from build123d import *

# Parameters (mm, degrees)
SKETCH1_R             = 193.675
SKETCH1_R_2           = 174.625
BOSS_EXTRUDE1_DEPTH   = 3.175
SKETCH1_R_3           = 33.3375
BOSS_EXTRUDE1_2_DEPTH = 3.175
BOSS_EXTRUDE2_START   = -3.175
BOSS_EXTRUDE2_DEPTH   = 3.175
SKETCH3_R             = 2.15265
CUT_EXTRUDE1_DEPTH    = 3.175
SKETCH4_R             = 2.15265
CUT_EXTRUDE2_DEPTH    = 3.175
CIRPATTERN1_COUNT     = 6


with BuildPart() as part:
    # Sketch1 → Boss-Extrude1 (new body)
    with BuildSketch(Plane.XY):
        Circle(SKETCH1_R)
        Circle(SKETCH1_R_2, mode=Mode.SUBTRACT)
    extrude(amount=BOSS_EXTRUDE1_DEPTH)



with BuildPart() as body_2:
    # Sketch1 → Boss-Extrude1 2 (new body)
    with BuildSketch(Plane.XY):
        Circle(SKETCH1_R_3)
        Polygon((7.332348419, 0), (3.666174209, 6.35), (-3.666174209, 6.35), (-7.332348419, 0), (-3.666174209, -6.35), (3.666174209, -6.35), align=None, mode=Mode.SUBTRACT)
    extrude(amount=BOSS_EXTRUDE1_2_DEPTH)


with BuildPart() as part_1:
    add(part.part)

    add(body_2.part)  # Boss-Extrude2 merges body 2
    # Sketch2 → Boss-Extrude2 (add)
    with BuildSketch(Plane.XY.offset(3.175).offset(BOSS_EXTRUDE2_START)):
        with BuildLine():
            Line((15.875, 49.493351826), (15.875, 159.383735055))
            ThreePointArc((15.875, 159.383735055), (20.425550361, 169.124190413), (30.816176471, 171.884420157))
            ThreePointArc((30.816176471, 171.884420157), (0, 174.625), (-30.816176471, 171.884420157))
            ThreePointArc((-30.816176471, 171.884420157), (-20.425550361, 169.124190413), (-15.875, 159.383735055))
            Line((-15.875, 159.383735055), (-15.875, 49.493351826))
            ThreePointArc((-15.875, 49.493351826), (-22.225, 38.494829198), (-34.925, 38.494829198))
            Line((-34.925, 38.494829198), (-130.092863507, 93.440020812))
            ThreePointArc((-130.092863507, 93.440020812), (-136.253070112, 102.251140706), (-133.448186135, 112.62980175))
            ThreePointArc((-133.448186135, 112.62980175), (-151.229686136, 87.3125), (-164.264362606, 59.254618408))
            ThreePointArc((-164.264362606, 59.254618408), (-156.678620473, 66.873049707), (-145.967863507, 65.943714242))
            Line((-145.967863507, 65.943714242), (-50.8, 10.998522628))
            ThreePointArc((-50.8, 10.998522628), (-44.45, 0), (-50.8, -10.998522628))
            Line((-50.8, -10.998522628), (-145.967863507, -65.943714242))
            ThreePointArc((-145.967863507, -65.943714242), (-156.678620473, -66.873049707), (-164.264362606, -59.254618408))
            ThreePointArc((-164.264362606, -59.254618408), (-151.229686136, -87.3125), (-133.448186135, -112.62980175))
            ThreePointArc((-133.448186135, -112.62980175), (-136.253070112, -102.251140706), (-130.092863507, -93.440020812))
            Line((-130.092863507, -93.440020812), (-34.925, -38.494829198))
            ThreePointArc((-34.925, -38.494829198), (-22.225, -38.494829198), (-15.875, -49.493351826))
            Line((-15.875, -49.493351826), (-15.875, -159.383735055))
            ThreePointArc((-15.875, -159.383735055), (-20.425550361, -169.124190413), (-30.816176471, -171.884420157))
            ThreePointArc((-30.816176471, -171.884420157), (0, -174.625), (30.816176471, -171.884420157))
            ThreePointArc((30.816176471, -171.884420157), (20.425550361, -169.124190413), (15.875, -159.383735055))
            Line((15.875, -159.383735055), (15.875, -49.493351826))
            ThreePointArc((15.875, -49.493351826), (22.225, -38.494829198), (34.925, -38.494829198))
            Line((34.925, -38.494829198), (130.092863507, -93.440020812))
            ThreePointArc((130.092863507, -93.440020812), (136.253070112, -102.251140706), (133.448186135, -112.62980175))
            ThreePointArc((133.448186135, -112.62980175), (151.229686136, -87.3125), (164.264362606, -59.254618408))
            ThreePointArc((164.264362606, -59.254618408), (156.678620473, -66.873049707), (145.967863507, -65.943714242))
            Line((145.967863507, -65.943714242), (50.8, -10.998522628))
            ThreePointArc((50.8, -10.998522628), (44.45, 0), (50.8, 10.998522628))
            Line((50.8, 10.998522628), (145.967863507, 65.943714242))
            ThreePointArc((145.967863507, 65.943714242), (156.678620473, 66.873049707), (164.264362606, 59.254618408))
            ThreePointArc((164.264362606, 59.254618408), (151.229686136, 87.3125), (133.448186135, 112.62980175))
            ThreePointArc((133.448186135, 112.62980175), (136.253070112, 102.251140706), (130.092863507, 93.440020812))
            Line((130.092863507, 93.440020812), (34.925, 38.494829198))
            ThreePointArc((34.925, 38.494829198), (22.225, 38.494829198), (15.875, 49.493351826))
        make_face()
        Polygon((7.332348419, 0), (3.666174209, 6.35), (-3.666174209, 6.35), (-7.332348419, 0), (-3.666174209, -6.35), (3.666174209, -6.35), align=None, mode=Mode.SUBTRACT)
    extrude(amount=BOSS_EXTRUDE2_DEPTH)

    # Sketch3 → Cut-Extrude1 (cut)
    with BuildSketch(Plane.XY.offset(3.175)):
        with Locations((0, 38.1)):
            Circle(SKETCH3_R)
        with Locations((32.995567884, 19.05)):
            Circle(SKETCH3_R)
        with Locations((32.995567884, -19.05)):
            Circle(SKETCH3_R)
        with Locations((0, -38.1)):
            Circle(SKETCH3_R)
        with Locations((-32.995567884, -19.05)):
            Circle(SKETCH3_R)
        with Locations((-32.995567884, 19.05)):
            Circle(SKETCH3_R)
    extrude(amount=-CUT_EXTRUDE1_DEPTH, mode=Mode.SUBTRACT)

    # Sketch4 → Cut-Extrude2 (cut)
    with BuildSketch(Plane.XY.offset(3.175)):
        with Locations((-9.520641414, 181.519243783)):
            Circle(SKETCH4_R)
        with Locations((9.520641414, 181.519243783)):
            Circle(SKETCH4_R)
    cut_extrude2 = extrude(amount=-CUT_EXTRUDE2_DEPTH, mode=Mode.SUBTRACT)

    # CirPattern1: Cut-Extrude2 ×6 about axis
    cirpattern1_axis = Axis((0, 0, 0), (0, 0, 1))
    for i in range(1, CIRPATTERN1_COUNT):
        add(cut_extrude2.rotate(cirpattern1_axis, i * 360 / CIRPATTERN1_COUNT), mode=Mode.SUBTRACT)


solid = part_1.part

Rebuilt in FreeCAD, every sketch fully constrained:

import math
import FreeCAD as App
import Part
import Sketcher
from FreeCAD import Vector
Q = App.Units.Quantity


def add_polygon(sketch, points):
    """Adds a closed chain of lines whose ends are joined by coincident constraints."""
    first, n = sketch.GeometryCount, len(points)
    for a, b in zip(points, points[1:] + points[:1]):
        sketch.addGeometry(Part.LineSegment(App.Vector(*a, 0), App.Vector(*b, 0)), False)
    for i in range(n):
        sketch.addConstraint(Sketcher.Constraint("Coincident", first + i, 2, first + (i + 1) % n, 1))

doc = App.newDocument("Part")
body = doc.addObject("PartDesign::Body", "Body")

# Sketch on XY plane
sketch1 = doc.addObject("Sketcher::SketchObject", "Sketch")
body.addObject(sketch1)
sketch1.AttachmentSupport = (doc.XY_Plane, [""])
sketch1.MapMode = "FlatFace"
sketch1.addGeometry(Part.Circle(Vector(0, 0, 0), Vector(0, 0, 1), 194), False)
sketch1.addGeometry(Part.Circle(Vector(0, 0, 0), Vector(0, 0, 1), 175), False)
sketch1.addConstraint(Sketcher.Constraint("Coincident", 0, 3, -1, 1))
sketch1.addConstraint(Sketcher.Constraint("Coincident", 1, 3, -1, 1))
sketch1.addConstraint(Sketcher.Constraint("Diameter", 0, Q("15.25 in")))
sketch1.addConstraint(Sketcher.Constraint("Diameter", 1, Q("13.75 in")))
pad1 = doc.addObject("PartDesign::Pad", "Pad")
body.addObject(pad1)
pad1.Profile = sketch1
pad1.Length = Q("0.125 in")
body2 = doc.addObject("PartDesign::Body", "Body001")

# Sketch on XY plane
sketch2 = doc.addObject("Sketcher::SketchObject", "Sketch001")
body2.addObject(sketch2)
sketch2.AttachmentSupport = (doc.getObject("XY_Plane001"), [""])
sketch2.MapMode = "FlatFace"
sketch2.addGeometry(Part.Circle(Vector(0, 0, 0), Vector(0, 0, 1), 33), False)  # 0
add_polygon(sketch2, [(4, 6), (7, 0), (4, -6), (-4, -6), (-7, 0), (-4, 6)])  # lines 1-6
sketch2.addConstraint(Sketcher.Constraint("Horizontal", 3))
sketch2.addConstraint(Sketcher.Constraint("Horizontal", 6))
sketch2.addConstraint(Sketcher.Constraint("Coincident", 0, 3, -1, 1))
sketch2.addConstraint(Sketcher.Constraint("Symmetric", 1, 2, 4, 2, -1, 1))
sketch2.addConstraint(Sketcher.Constraint("Symmetric", 2, 2, 5, 2, -1, 1))
sketch2.addConstraint(Sketcher.Constraint("PointOnObject", 1, 2, -1))
sketch2.addConstraint(Sketcher.Constraint("Parallel", 1, 4))
sketch2.addConstraint(Sketcher.Constraint("Vertical", 3, 2, 5, 2))
sketch2.addConstraint(Sketcher.Constraint("Diameter", 0, Q("2.625 in")))
sketch2.addConstraint(Sketcher.Constraint("Angle", 1, Q("-60 deg")))
sketch2.addConstraint(Sketcher.Constraint("DistanceY", 3, 2, 5, 2, Q("0.5 in")))
sketch2.addConstraint(Sketcher.Constraint("DistanceX", 3, 2, 3, 1, 7.332348))
pad2 = doc.addObject("PartDesign::Pad", "Pad001")
body2.addObject(pad2)
pad2.Profile = sketch2
pad2.Length = Q("0.125 in")
body.AllowCompound = True
doc.recompute()

boolean = doc.addObject("PartDesign::Boolean", "Boolean")
body.addObject(boolean)
boolean.Type = "Fuse"
boolean.addObjects([body2])

# Sketch on XY plane
sketch3 = doc.addObject("Sketcher::SketchObject", "Sketch002")
body.addObject(sketch3)
sketch3.AttachmentSupport = (doc.XY_Plane, [""])
sketch3.MapMode = "FlatFace"
sketch3.addGeometry(Part.LineSegment(Vector(16, 49, 0), Vector(16, 159, 0)), False)  # 0
sketch3.addGeometry(Part.ArcOfCircle(Part.Circle(Vector(29, 159, 0), Vector(0, 0, 1), 13), math.radians(80), math.radians(180)), False)  # 1
sketch3.addGeometry(Part.ArcOfCircle(Part.Circle(Vector(0, 0, 0), Vector(0, 0, 1), 175), math.radians(80), math.radians(100)), False)  # 2
sketch3.addGeometry(Part.ArcOfCircle(Part.Circle(Vector(-29, 159, 0), Vector(0, 0, 1), 13), math.radians(0), math.radians(100)), False)  # 3
sketch3.addGeometry(Part.LineSegment(Vector(-16, 159, 0), Vector(-16, 49, 0)), False)  # 4
sketch3.addGeometry(Part.ArcOfCircle(Part.Circle(Vector(-29, 49, 0), Vector(0, 0, 1), 13), math.radians(-120), math.radians(0)), False)  # 5
sketch3.addGeometry(Part.LineSegment(Vector(-35, 38, 0), Vector(-130, 93, 0)), False)  # 6
sketch3.addGeometry(Part.ArcOfCircle(Part.Circle(Vector(-124, 104, 0), Vector(0, 0, 1), 13), math.radians(140), math.radians(240)), False)  # 7
sketch3.addGeometry(Part.ArcOfCircle(Part.Circle(Vector(0, 0, 0), Vector(0, 0, 1), 175), math.radians(140), math.radians(160)), False)  # 8
sketch3.addGeometry(Part.ArcOfCircle(Part.Circle(Vector(-152, 55, 0), Vector(0, 0, 1), 13), math.radians(60), math.radians(160)), False)  # 9
sketch3.addGeometry(Part.LineSegment(Vector(-146, 66, 0), Vector(-51, 11, 0)), False)  # 10
sketch3.addGeometry(Part.ArcOfCircle(Part.Circle(Vector(-57, 0, 0), Vector(0, 0, 1), 13), math.radians(-60), math.radians(60)), False)  # 11
sketch3.addGeometry(Part.LineSegment(Vector(-51, -11, 0), Vector(-146, -66, 0)), False)  # 12
sketch3.addGeometry(Part.ArcOfCircle(Part.Circle(Vector(-152, -55, 0), Vector(0, 0, 1), 13), math.radians(-160), math.radians(-60)), False)  # 13
sketch3.addGeometry(Part.ArcOfCircle(Part.Circle(Vector(0, 0, 0), Vector(0, 0, 1), 175), math.radians(-160), math.radians(-140)), False)  # 14
sketch3.addGeometry(Part.ArcOfCircle(Part.Circle(Vector(-124, -104, 0), Vector(0, 0, 1), 13), math.radians(120), math.radians(220)), False)  # 15
sketch3.addGeometry(Part.LineSegment(Vector(-130, -93, 0), Vector(-35, -38, 0)), False)  # 16
sketch3.addGeometry(Part.ArcOfCircle(Part.Circle(Vector(-29, -49, 0), Vector(0, 0, 1), 13), math.radians(0), math.radians(120)), False)  # 17
sketch3.addGeometry(Part.LineSegment(Vector(-16, -49, 0), Vector(-16, -159, 0)), False)  # 18
sketch3.addGeometry(Part.ArcOfCircle(Part.Circle(Vector(-29, -159, 0), Vector(0, 0, 1), 13), math.radians(-100), math.radians(0)), False)  # 19
sketch3.addGeometry(Part.ArcOfCircle(Part.Circle(Vector(0, 0, 0), Vector(0, 0, 1), 175), math.radians(-100), math.radians(-80)), False)  # 20
sketch3.addGeometry(Part.ArcOfCircle(Part.Circle(Vector(29, -159, 0), Vector(0, 0, 1), 13), math.radians(180), math.radians(280)), False)  # 21
sketch3.addGeometry(Part.LineSegment(Vector(16, -159, 0), Vector(16, -49, 0)), False)  # 22
sketch3.addGeometry(Part.ArcOfCircle(Part.Circle(Vector(29, -49, 0), Vector(0, 0, 1), 13), math.radians(60), math.radians(180)), False)  # 23
sketch3.addGeometry(Part.LineSegment(Vector(35, -38, 0), Vector(130, -93, 0)), False)  # 24
sketch3.addGeometry(Part.ArcOfCircle(Part.Circle(Vector(124, -104, 0), Vector(0, 0, 1), 13), math.radians(-40), math.radians(60)), False)  # 25
sketch3.addGeometry(Part.ArcOfCircle(Part.Circle(Vector(0, 0, 0), Vector(0, 0, 1), 175), math.radians(-40), math.radians(-20)), False)  # 26
sketch3.addGeometry(Part.ArcOfCircle(Part.Circle(Vector(152, -55, 0), Vector(0, 0, 1), 13), math.radians(-120), math.radians(-20)), False)  # 27
sketch3.addGeometry(Part.LineSegment(Vector(146, -66, 0), Vector(51, -11, 0)), False)  # 28
sketch3.addGeometry(Part.ArcOfCircle(Part.Circle(Vector(57, 0, 0), Vector(0, 0, 1), 13), math.radians(120), math.radians(240)), False)  # 29
sketch3.addGeometry(Part.LineSegment(Vector(51, 11, 0), Vector(146, 66, 0)), False)  # 30
sketch3.addGeometry(Part.ArcOfCircle(Part.Circle(Vector(152, 55, 0), Vector(0, 0, 1), 13), math.radians(20), math.radians(120)), False)  # 31
sketch3.addGeometry(Part.ArcOfCircle(Part.Circle(Vector(0, 0, 0), Vector(0, 0, 1), 175), math.radians(20), math.radians(40)), False)  # 32
sketch3.addGeometry(Part.ArcOfCircle(Part.Circle(Vector(124, 104, 0), Vector(0, 0, 1), 13), math.radians(-60), math.radians(40)), False)  # 33
sketch3.addGeometry(Part.LineSegment(Vector(130, 93, 0), Vector(35, 38, 0)), False)  # 34
sketch3.addGeometry(Part.ArcOfCircle(Part.Circle(Vector(29, 49, 0), Vector(0, 0, 1), 13), math.radians(180), math.radians(300)), False)  # 35
add_polygon(sketch3, [(4, 6), (7, 0), (4, -6), (-4, -6), (-7, 0), (-4, 6)])  # lines 36-41
sketch3.addConstraint(Sketcher.Constraint("Tangent", 0, 2, 1, 2))
sketch3.addConstraint(Sketcher.Constraint("Tangent", 1, 1, 2, 1))
sketch3.addConstraint(Sketcher.Constraint("Tangent", 2, 2, 3, 2))
sketch3.addConstraint(Sketcher.Constraint("Tangent", 3, 1, 4, 1))
sketch3.addConstraint(Sketcher.Constraint("Tangent", 4, 2, 5, 2))
sketch3.addConstraint(Sketcher.Constraint("Tangent", 5, 1, 6, 1))
sketch3.addConstraint(Sketcher.Constraint("Tangent", 6, 2, 7, 2))
sketch3.addConstraint(Sketcher.Constraint("Tangent", 7, 1, 8, 1))
sketch3.addConstraint(Sketcher.Constraint("Tangent", 8, 2, 9, 2))
sketch3.addConstraint(Sketcher.Constraint("Tangent", 9, 1, 10, 1))
sketch3.addConstraint(Sketcher.Constraint("Tangent", 10, 2, 11, 2))
sketch3.addConstraint(Sketcher.Constraint("Tangent", 11, 1, 12, 1))
sketch3.addConstraint(Sketcher.Constraint("Tangent", 12, 2, 13, 2))
sketch3.addConstraint(Sketcher.Constraint("Tangent", 13, 1, 14, 1))
sketch3.addConstraint(Sketcher.Constraint("Tangent", 14, 2, 15, 2))
sketch3.addConstraint(Sketcher.Constraint("Tangent", 15, 1, 16, 1))
sketch3.addConstraint(Sketcher.Constraint("Tangent", 16, 2, 17, 2))
sketch3.addConstraint(Sketcher.Constraint("Tangent", 17, 1, 18, 1))
sketch3.addConstraint(Sketcher.Constraint("Tangent", 18, 2, 19, 2))
sketch3.addConstraint(Sketcher.Constraint("Tangent", 19, 1, 20, 1))
sketch3.addConstraint(Sketcher.Constraint("Tangent", 20, 2, 21, 2))
sketch3.addConstraint(Sketcher.Constraint("Tangent", 21, 1, 22, 1))
sketch3.addConstraint(Sketcher.Constraint("Tangent", 22, 2, 23, 2))
sketch3.addConstraint(Sketcher.Constraint("Tangent", 23, 1, 24, 1))
sketch3.addConstraint(Sketcher.Constraint("Tangent", 24, 2, 25, 2))
sketch3.addConstraint(Sketcher.Constraint("Tangent", 25, 1, 26, 1))
sketch3.addConstraint(Sketcher.Constraint("Tangent", 26, 2, 27, 2))
sketch3.addConstraint(Sketcher.Constraint("Tangent", 27, 1, 28, 1))
sketch3.addConstraint(Sketcher.Constraint("Tangent", 28, 2, 29, 2))
sketch3.addConstraint(Sketcher.Constraint("Tangent", 29, 1, 30, 1))
sketch3.addConstraint(Sketcher.Constraint("Tangent", 30, 2, 31, 2))
sketch3.addConstraint(Sketcher.Constraint("Tangent", 31, 1, 32, 1))
sketch3.addConstraint(Sketcher.Constraint("Tangent", 32, 2, 33, 2))
sketch3.addConstraint(Sketcher.Constraint("Tangent", 33, 1, 34, 1))
sketch3.addConstraint(Sketcher.Constraint("Tangent", 34, 2, 35, 2))
sketch3.addConstraint(Sketcher.Constraint("Tangent", 35, 1, 0, 1))
sketch3.addConstraint(Sketcher.Constraint("Vertical", 0))
sketch3.addConstraint(Sketcher.Constraint("Vertical", 4))
sketch3.addConstraint(Sketcher.Constraint("Vertical", 18))
sketch3.addConstraint(Sketcher.Constraint("Vertical", 22))
sketch3.addConstraint(Sketcher.Constraint("Horizontal", 38))
sketch3.addConstraint(Sketcher.Constraint("Horizontal", 41))
sketch3.addConstraint(Sketcher.Constraint("Coincident", 2, 3, -1, 1))
sketch3.addConstraint(Sketcher.Constraint("Coincident", 8, 3, -1, 1))
sketch3.addConstraint(Sketcher.Constraint("Coincident", 14, 3, -1, 1))
sketch3.addConstraint(Sketcher.Constraint("Coincident", 20, 3, -1, 1))
sketch3.addConstraint(Sketcher.Constraint("Coincident", 26, 3, -1, 1))
sketch3.addConstraint(Sketcher.Constraint("Coincident", 32, 3, -1, 1))
sketch3.addConstraint(Sketcher.Constraint("Equal", 1, 3))
sketch3.addConstraint(Sketcher.Constraint("Equal", 3, 5))
sketch3.addConstraint(Sketcher.Constraint("Equal", 5, 7))
sketch3.addConstraint(Sketcher.Constraint("Equal", 2, 8))
sketch3.addConstraint(Sketcher.Constraint("Equal", 7, 9))
sketch3.addConstraint(Sketcher.Constraint("Equal", 9, 11))
sketch3.addConstraint(Sketcher.Constraint("Equal", 11, 13))
sketch3.addConstraint(Sketcher.Constraint("Equal", 8, 14))
sketch3.addConstraint(Sketcher.Constraint("Equal", 13, 15))
sketch3.addConstraint(Sketcher.Constraint("Equal", 15, 17))
sketch3.addConstraint(Sketcher.Constraint("Equal", 17, 19))
sketch3.addConstraint(Sketcher.Constraint("Equal", 14, 20))
sketch3.addConstraint(Sketcher.Constraint("Equal", 19, 21))
sketch3.addConstraint(Sketcher.Constraint("Equal", 21, 23))
sketch3.addConstraint(Sketcher.Constraint("Equal", 23, 25))
sketch3.addConstraint(Sketcher.Constraint("Equal", 20, 26))
sketch3.addConstraint(Sketcher.Constraint("Equal", 25, 27))
sketch3.addConstraint(Sketcher.Constraint("Equal", 27, 29))
sketch3.addConstraint(Sketcher.Constraint("Equal", 29, 31))
sketch3.addConstraint(Sketcher.Constraint("Equal", 26, 32))
sketch3.addConstraint(Sketcher.Constraint("Equal", 31, 33))
sketch3.addConstraint(Sketcher.Constraint("Equal", 33, 35))
sketch3.addConstraint(Sketcher.Constraint("Symmetric", 5, 3, 23, 3, -1, 1))
sketch3.addConstraint(Sketcher.Constraint("Symmetric", 11, 3, 29, 3, -1, 1))
sketch3.addConstraint(Sketcher.Constraint("Symmetric", 17, 3, 35, 3, -1, 1))
sketch3.addConstraint(Sketcher.Constraint("Symmetric", 36, 2, 39, 2, -1, 1))
sketch3.addConstraint(Sketcher.Constraint("Symmetric", 37, 2, 40, 2, -1, 1))
sketch3.addConstraint(Sketcher.Constraint("Symmetric", 17, 3, 23, 3, -2))
sketch3.addConstraint(Sketcher.Constraint("Symmetric", 12, 2, 27, 1, -2))
sketch3.addConstraint(Sketcher.Constraint("PointOnObject", 36, 2, -1))
sketch3.addConstraint(Sketcher.Constraint("Parallel", 6, 10))
sketch3.addConstraint(Sketcher.Constraint("Parallel", 12, 16))
sketch3.addConstraint(Sketcher.Constraint("Parallel", 10, 24))
sketch3.addConstraint(Sketcher.Constraint("Parallel", 24, 28))
sketch3.addConstraint(Sketcher.Constraint("Parallel", 16, 30))
sketch3.addConstraint(Sketcher.Constraint("Parallel", 30, 34))
sketch3.addConstraint(Sketcher.Constraint("Perpendicular", 34, 36))
sketch3.addConstraint(Sketcher.Constraint("Perpendicular", 28, 37))
sketch3.addConstraint(Sketcher.Constraint("Parallel", 36, 39))
sketch3.addConstraint(Sketcher.Constraint("Equal", 6, 10))
sketch3.addConstraint(Sketcher.Constraint("Radius", 1, Q("0.5 in")))
sketch3.addConstraint(Sketcher.Constraint("DistanceX", 10, 2, -1, 1, Q("2 in")))
sketch3.addConstraint(Sketcher.Constraint("Angle", 6, Q("150 deg")))
sketch3.addConstraint(Sketcher.Constraint("Radius", 2, Q("6.875 in")))
sketch3.addConstraint(Sketcher.Constraint("DistanceY", 37, 2, -1, 1, Q("0.25 in")))
sketch3.addConstraint(Sketcher.Constraint("DistanceX", -1, 1, 1, 3, Q("1.125 in")))
sketch3.addConstraint(Sketcher.Constraint("DistanceX", 38, 2, 38, 1, 7.332348))
pad3 = doc.addObject("PartDesign::Pad", "Pad002")
body.addObject(pad3)
pad3.Profile = sketch3
pad3.Length = Q("0.125 in")

# Sketch on XY plane
sketch4 = doc.addObject("Sketcher::SketchObject", "Sketch003")
body.addObject(sketch4)
sketch4.AttachmentSupport = (doc.XY_Plane, [""])
sketch4.MapMode = "FlatFace"
sketch4.AttachmentOffset = App.Placement(Vector(0, 0, 0.125 * 25.4), App.Rotation())
sketch4.addGeometry(Part.Circle(Vector(0, 38.1, 0), Vector(0, 0, 1), 2.2), False)
sketch4.addGeometry(Part.Circle(Vector(33, 19.1, 0), Vector(0, 0, 1), 2.2), False)
sketch4.addGeometry(Part.Circle(Vector(33, -19.1, 0), Vector(0, 0, 1), 2.2), False)
sketch4.addGeometry(Part.Circle(Vector(0, -38.1, 0), Vector(0, 0, 1), 2.2), False)
sketch4.addGeometry(Part.Circle(Vector(-33, -19.1, 0), Vector(0, 0, 1), 2.2), False)
sketch4.addGeometry(Part.Circle(Vector(-33, 19.1, 0), Vector(0, 0, 1), 2.2), False)
sketch4.addConstraint(Sketcher.Constraint("Equal", 0, 1))
sketch4.addConstraint(Sketcher.Constraint("Equal", 1, 2))
sketch4.addConstraint(Sketcher.Constraint("Equal", 2, 3))
sketch4.addConstraint(Sketcher.Constraint("Equal", 3, 4))
sketch4.addConstraint(Sketcher.Constraint("Equal", 4, 5))
sketch4.addConstraint(Sketcher.Constraint("Symmetric", 0, 3, 3, 3, -1, 1))
sketch4.addConstraint(Sketcher.Constraint("Symmetric", 1, 3, 4, 3, -1, 1))
sketch4.addConstraint(Sketcher.Constraint("Symmetric", 2, 3, 5, 3, -1, 1))
sketch4.addConstraint(Sketcher.Constraint("Symmetric", 2, 3, 4, 3, -2))
sketch4.addConstraint(Sketcher.Constraint("PointOnObject", 0, 3, -2))
sketch4.addConstraint(Sketcher.Constraint("DistanceY", 3, 3, 0, 3, Q("3 in")))
sketch4.addConstraint(Sketcher.Constraint("Diameter", 0, Q("0.1695 in")))
sketch4.addConstraint(Sketcher.Constraint("DistanceY", 2, 3, 1, 3, Q("1.5 in")))
sketch4.addConstraint(Sketcher.Constraint("DistanceX", -1, 1, 1, 3, 32.995568))
pocket1 = doc.addObject("PartDesign::Pocket", "Pocket")
body.addObject(pocket1)
pocket1.Profile = sketch4
pocket1.Length = Q("0.125 in")

# Sketch on XY plane
sketch5 = doc.addObject("Sketcher::SketchObject", "Sketch004")
body.addObject(sketch5)
sketch5.AttachmentSupport = (doc.XY_Plane, [""])
sketch5.MapMode = "FlatFace"
sketch5.AttachmentOffset = App.Placement(Vector(0, 0, 0.125 * 25.4), App.Rotation())
sketch5.addGeometry(Part.Circle(Vector(-9.5, 181.5, 0), Vector(0, 0, 1), 2.2), False)
sketch5.addGeometry(Part.Circle(Vector(9.5, 181.5, 0), Vector(0, 0, 1), 2.2), False)
sketch5.addConstraint(Sketcher.Constraint("Equal", 0, 1))
sketch5.addConstraint(Sketcher.Constraint("Symmetric", 0, 3, 1, 3, -2))
sketch5.addConstraint(Sketcher.Constraint("Diameter", 0, Q("0.1695 in")))
sketch5.addConstraint(Sketcher.Constraint("DistanceX", 0, 3, -1, 1, 9.520641))
sketch5.addConstraint(Sketcher.Constraint("DistanceY", -1, 1, 0, 3, 181.519244))
pocket2 = doc.addObject("PartDesign::Pocket", "Pocket001")
body.addObject(pocket2)
pocket2.Profile = sketch5
pocket2.Length = Q("0.125 in")
doc.recompute()

polarpattern = doc.addObject("PartDesign::PolarPattern", "PolarPattern")
body.addObject(polarpattern)
polarpattern.Originals = [pocket2]
polarpattern.Axis = (doc.Z_Axis, [""])
polarpattern.Angle = 360
polarpattern.Occurrences = 6
body.Tip = polarpattern

doc.recompute()
